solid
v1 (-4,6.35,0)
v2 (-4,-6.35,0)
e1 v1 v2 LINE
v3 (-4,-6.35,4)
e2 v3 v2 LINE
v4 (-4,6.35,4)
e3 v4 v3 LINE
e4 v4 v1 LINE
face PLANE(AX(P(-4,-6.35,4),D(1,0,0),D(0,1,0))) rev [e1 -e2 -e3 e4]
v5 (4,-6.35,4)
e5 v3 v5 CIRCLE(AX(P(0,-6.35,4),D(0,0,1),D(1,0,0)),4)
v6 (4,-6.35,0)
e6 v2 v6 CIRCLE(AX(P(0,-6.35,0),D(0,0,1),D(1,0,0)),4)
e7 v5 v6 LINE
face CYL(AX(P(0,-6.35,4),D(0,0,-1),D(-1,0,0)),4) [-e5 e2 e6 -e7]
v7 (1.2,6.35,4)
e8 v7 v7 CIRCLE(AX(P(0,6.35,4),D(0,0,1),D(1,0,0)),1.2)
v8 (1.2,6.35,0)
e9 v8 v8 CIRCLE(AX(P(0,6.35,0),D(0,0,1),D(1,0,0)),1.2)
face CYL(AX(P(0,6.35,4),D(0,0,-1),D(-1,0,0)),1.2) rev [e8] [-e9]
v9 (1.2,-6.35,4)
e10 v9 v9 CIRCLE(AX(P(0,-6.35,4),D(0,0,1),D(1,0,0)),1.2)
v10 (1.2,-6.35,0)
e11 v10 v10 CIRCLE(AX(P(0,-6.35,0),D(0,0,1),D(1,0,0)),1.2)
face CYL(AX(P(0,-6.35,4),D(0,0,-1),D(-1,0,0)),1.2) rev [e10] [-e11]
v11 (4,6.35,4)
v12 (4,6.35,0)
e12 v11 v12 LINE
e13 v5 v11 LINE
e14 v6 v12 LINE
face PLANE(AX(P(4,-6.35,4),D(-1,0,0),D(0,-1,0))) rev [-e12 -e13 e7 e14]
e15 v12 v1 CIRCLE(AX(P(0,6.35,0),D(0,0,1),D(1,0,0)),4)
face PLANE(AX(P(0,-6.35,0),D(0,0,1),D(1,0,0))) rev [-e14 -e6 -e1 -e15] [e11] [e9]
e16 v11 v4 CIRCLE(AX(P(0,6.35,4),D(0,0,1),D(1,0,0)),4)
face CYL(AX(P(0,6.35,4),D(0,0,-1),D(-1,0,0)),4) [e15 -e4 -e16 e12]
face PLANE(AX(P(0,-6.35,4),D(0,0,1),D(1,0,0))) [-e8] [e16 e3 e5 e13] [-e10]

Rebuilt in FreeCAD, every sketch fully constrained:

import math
import FreeCAD as App
import Part
import Sketcher
Q = App.Units.Quantity

doc = App.newDocument("Part")
body = doc.addObject("PartDesign::Body", "Body")

sketch1 = body.newObject("Sketcher::SketchObject", "Sketch")
sketch1.AttachmentSupport = (doc.getObject("XY_Plane"), [""])
sketch1.MapMode = "FlatFace"
sketch1.addGeometry(Part.LineSegment(App.Vector(-4, 6.35, 0), App.Vector(-4, -6.35, 0)), False)
sketch1.addGeometry(Part.ArcOfCircle(Part.Circle(App.Vector(0, -6.35, 0), App.Vector(0, 0, 1), 4), math.radians(180), math.radians(360)), False)
sketch1.addGeometry(Part.LineSegment(App.Vector(4, -6.35, 0), App.Vector(4, 6.35, 0)), False)
sketch1.addGeometry(Part.ArcOfCircle(Part.Circle(App.Vector(0, 6.35, 0), App.Vector(0, 0, 1), 4), math.radians(0), math.radians(180)), False)
sketch1.addGeometry(Part.Circle(App.Vector(0, -6.35, 0), App.Vector(0, 0, 1), 1.2), False)
sketch1.addGeometry(Part.Circle(App.Vector(0, 6.35, 0), App.Vector(0, 0, 1), 1.2), False)
sketch1.addConstraint(Sketcher.Constraint("Tangent", 0, 2, 1, 1))
sketch1.addConstraint(Sketcher.Constraint("Tangent", 1, 2, 2, 1))
sketch1.addConstraint(Sketcher.Constraint("Tangent", 2, 2, 3, 1))
sketch1.addConstraint(Sketcher.Constraint("Tangent", 3, 2, 0, 1))
sketch1.addConstraint(Sketcher.Constraint("Vertical", 0))
sketch1.addConstraint(Sketcher.Constraint("Vertical", 2))
sketch1.addConstraint(Sketcher.Constraint("Coincident", 4, 3, 1, 3))
sketch1.addConstraint(Sketcher.Constraint("Coincident", 5, 3, 3, 3))
sketch1.addConstraint(Sketcher.Constraint("Equal", 4, 5))
sketch1.addConstraint(Sketcher.Constraint("Symmetric", 1, 3, 3, 3, -1, 1))
sketch1.addConstraint(Sketcher.Constraint("Radius", 1, Q("4 mm")))
sketch1.addConstraint(Sketcher.Constraint("Diameter", 4, Q("2.4 mm")))
sketch1.addConstraint(Sketcher.Constraint("DistanceY", 0, 2, 0, 1, Q("12.7 mm")))
pad1 = body.newObject("PartDesign::Pad", "Pad")
pad1.Profile = sketch1
pad1.Length = 4

doc.recompute()
